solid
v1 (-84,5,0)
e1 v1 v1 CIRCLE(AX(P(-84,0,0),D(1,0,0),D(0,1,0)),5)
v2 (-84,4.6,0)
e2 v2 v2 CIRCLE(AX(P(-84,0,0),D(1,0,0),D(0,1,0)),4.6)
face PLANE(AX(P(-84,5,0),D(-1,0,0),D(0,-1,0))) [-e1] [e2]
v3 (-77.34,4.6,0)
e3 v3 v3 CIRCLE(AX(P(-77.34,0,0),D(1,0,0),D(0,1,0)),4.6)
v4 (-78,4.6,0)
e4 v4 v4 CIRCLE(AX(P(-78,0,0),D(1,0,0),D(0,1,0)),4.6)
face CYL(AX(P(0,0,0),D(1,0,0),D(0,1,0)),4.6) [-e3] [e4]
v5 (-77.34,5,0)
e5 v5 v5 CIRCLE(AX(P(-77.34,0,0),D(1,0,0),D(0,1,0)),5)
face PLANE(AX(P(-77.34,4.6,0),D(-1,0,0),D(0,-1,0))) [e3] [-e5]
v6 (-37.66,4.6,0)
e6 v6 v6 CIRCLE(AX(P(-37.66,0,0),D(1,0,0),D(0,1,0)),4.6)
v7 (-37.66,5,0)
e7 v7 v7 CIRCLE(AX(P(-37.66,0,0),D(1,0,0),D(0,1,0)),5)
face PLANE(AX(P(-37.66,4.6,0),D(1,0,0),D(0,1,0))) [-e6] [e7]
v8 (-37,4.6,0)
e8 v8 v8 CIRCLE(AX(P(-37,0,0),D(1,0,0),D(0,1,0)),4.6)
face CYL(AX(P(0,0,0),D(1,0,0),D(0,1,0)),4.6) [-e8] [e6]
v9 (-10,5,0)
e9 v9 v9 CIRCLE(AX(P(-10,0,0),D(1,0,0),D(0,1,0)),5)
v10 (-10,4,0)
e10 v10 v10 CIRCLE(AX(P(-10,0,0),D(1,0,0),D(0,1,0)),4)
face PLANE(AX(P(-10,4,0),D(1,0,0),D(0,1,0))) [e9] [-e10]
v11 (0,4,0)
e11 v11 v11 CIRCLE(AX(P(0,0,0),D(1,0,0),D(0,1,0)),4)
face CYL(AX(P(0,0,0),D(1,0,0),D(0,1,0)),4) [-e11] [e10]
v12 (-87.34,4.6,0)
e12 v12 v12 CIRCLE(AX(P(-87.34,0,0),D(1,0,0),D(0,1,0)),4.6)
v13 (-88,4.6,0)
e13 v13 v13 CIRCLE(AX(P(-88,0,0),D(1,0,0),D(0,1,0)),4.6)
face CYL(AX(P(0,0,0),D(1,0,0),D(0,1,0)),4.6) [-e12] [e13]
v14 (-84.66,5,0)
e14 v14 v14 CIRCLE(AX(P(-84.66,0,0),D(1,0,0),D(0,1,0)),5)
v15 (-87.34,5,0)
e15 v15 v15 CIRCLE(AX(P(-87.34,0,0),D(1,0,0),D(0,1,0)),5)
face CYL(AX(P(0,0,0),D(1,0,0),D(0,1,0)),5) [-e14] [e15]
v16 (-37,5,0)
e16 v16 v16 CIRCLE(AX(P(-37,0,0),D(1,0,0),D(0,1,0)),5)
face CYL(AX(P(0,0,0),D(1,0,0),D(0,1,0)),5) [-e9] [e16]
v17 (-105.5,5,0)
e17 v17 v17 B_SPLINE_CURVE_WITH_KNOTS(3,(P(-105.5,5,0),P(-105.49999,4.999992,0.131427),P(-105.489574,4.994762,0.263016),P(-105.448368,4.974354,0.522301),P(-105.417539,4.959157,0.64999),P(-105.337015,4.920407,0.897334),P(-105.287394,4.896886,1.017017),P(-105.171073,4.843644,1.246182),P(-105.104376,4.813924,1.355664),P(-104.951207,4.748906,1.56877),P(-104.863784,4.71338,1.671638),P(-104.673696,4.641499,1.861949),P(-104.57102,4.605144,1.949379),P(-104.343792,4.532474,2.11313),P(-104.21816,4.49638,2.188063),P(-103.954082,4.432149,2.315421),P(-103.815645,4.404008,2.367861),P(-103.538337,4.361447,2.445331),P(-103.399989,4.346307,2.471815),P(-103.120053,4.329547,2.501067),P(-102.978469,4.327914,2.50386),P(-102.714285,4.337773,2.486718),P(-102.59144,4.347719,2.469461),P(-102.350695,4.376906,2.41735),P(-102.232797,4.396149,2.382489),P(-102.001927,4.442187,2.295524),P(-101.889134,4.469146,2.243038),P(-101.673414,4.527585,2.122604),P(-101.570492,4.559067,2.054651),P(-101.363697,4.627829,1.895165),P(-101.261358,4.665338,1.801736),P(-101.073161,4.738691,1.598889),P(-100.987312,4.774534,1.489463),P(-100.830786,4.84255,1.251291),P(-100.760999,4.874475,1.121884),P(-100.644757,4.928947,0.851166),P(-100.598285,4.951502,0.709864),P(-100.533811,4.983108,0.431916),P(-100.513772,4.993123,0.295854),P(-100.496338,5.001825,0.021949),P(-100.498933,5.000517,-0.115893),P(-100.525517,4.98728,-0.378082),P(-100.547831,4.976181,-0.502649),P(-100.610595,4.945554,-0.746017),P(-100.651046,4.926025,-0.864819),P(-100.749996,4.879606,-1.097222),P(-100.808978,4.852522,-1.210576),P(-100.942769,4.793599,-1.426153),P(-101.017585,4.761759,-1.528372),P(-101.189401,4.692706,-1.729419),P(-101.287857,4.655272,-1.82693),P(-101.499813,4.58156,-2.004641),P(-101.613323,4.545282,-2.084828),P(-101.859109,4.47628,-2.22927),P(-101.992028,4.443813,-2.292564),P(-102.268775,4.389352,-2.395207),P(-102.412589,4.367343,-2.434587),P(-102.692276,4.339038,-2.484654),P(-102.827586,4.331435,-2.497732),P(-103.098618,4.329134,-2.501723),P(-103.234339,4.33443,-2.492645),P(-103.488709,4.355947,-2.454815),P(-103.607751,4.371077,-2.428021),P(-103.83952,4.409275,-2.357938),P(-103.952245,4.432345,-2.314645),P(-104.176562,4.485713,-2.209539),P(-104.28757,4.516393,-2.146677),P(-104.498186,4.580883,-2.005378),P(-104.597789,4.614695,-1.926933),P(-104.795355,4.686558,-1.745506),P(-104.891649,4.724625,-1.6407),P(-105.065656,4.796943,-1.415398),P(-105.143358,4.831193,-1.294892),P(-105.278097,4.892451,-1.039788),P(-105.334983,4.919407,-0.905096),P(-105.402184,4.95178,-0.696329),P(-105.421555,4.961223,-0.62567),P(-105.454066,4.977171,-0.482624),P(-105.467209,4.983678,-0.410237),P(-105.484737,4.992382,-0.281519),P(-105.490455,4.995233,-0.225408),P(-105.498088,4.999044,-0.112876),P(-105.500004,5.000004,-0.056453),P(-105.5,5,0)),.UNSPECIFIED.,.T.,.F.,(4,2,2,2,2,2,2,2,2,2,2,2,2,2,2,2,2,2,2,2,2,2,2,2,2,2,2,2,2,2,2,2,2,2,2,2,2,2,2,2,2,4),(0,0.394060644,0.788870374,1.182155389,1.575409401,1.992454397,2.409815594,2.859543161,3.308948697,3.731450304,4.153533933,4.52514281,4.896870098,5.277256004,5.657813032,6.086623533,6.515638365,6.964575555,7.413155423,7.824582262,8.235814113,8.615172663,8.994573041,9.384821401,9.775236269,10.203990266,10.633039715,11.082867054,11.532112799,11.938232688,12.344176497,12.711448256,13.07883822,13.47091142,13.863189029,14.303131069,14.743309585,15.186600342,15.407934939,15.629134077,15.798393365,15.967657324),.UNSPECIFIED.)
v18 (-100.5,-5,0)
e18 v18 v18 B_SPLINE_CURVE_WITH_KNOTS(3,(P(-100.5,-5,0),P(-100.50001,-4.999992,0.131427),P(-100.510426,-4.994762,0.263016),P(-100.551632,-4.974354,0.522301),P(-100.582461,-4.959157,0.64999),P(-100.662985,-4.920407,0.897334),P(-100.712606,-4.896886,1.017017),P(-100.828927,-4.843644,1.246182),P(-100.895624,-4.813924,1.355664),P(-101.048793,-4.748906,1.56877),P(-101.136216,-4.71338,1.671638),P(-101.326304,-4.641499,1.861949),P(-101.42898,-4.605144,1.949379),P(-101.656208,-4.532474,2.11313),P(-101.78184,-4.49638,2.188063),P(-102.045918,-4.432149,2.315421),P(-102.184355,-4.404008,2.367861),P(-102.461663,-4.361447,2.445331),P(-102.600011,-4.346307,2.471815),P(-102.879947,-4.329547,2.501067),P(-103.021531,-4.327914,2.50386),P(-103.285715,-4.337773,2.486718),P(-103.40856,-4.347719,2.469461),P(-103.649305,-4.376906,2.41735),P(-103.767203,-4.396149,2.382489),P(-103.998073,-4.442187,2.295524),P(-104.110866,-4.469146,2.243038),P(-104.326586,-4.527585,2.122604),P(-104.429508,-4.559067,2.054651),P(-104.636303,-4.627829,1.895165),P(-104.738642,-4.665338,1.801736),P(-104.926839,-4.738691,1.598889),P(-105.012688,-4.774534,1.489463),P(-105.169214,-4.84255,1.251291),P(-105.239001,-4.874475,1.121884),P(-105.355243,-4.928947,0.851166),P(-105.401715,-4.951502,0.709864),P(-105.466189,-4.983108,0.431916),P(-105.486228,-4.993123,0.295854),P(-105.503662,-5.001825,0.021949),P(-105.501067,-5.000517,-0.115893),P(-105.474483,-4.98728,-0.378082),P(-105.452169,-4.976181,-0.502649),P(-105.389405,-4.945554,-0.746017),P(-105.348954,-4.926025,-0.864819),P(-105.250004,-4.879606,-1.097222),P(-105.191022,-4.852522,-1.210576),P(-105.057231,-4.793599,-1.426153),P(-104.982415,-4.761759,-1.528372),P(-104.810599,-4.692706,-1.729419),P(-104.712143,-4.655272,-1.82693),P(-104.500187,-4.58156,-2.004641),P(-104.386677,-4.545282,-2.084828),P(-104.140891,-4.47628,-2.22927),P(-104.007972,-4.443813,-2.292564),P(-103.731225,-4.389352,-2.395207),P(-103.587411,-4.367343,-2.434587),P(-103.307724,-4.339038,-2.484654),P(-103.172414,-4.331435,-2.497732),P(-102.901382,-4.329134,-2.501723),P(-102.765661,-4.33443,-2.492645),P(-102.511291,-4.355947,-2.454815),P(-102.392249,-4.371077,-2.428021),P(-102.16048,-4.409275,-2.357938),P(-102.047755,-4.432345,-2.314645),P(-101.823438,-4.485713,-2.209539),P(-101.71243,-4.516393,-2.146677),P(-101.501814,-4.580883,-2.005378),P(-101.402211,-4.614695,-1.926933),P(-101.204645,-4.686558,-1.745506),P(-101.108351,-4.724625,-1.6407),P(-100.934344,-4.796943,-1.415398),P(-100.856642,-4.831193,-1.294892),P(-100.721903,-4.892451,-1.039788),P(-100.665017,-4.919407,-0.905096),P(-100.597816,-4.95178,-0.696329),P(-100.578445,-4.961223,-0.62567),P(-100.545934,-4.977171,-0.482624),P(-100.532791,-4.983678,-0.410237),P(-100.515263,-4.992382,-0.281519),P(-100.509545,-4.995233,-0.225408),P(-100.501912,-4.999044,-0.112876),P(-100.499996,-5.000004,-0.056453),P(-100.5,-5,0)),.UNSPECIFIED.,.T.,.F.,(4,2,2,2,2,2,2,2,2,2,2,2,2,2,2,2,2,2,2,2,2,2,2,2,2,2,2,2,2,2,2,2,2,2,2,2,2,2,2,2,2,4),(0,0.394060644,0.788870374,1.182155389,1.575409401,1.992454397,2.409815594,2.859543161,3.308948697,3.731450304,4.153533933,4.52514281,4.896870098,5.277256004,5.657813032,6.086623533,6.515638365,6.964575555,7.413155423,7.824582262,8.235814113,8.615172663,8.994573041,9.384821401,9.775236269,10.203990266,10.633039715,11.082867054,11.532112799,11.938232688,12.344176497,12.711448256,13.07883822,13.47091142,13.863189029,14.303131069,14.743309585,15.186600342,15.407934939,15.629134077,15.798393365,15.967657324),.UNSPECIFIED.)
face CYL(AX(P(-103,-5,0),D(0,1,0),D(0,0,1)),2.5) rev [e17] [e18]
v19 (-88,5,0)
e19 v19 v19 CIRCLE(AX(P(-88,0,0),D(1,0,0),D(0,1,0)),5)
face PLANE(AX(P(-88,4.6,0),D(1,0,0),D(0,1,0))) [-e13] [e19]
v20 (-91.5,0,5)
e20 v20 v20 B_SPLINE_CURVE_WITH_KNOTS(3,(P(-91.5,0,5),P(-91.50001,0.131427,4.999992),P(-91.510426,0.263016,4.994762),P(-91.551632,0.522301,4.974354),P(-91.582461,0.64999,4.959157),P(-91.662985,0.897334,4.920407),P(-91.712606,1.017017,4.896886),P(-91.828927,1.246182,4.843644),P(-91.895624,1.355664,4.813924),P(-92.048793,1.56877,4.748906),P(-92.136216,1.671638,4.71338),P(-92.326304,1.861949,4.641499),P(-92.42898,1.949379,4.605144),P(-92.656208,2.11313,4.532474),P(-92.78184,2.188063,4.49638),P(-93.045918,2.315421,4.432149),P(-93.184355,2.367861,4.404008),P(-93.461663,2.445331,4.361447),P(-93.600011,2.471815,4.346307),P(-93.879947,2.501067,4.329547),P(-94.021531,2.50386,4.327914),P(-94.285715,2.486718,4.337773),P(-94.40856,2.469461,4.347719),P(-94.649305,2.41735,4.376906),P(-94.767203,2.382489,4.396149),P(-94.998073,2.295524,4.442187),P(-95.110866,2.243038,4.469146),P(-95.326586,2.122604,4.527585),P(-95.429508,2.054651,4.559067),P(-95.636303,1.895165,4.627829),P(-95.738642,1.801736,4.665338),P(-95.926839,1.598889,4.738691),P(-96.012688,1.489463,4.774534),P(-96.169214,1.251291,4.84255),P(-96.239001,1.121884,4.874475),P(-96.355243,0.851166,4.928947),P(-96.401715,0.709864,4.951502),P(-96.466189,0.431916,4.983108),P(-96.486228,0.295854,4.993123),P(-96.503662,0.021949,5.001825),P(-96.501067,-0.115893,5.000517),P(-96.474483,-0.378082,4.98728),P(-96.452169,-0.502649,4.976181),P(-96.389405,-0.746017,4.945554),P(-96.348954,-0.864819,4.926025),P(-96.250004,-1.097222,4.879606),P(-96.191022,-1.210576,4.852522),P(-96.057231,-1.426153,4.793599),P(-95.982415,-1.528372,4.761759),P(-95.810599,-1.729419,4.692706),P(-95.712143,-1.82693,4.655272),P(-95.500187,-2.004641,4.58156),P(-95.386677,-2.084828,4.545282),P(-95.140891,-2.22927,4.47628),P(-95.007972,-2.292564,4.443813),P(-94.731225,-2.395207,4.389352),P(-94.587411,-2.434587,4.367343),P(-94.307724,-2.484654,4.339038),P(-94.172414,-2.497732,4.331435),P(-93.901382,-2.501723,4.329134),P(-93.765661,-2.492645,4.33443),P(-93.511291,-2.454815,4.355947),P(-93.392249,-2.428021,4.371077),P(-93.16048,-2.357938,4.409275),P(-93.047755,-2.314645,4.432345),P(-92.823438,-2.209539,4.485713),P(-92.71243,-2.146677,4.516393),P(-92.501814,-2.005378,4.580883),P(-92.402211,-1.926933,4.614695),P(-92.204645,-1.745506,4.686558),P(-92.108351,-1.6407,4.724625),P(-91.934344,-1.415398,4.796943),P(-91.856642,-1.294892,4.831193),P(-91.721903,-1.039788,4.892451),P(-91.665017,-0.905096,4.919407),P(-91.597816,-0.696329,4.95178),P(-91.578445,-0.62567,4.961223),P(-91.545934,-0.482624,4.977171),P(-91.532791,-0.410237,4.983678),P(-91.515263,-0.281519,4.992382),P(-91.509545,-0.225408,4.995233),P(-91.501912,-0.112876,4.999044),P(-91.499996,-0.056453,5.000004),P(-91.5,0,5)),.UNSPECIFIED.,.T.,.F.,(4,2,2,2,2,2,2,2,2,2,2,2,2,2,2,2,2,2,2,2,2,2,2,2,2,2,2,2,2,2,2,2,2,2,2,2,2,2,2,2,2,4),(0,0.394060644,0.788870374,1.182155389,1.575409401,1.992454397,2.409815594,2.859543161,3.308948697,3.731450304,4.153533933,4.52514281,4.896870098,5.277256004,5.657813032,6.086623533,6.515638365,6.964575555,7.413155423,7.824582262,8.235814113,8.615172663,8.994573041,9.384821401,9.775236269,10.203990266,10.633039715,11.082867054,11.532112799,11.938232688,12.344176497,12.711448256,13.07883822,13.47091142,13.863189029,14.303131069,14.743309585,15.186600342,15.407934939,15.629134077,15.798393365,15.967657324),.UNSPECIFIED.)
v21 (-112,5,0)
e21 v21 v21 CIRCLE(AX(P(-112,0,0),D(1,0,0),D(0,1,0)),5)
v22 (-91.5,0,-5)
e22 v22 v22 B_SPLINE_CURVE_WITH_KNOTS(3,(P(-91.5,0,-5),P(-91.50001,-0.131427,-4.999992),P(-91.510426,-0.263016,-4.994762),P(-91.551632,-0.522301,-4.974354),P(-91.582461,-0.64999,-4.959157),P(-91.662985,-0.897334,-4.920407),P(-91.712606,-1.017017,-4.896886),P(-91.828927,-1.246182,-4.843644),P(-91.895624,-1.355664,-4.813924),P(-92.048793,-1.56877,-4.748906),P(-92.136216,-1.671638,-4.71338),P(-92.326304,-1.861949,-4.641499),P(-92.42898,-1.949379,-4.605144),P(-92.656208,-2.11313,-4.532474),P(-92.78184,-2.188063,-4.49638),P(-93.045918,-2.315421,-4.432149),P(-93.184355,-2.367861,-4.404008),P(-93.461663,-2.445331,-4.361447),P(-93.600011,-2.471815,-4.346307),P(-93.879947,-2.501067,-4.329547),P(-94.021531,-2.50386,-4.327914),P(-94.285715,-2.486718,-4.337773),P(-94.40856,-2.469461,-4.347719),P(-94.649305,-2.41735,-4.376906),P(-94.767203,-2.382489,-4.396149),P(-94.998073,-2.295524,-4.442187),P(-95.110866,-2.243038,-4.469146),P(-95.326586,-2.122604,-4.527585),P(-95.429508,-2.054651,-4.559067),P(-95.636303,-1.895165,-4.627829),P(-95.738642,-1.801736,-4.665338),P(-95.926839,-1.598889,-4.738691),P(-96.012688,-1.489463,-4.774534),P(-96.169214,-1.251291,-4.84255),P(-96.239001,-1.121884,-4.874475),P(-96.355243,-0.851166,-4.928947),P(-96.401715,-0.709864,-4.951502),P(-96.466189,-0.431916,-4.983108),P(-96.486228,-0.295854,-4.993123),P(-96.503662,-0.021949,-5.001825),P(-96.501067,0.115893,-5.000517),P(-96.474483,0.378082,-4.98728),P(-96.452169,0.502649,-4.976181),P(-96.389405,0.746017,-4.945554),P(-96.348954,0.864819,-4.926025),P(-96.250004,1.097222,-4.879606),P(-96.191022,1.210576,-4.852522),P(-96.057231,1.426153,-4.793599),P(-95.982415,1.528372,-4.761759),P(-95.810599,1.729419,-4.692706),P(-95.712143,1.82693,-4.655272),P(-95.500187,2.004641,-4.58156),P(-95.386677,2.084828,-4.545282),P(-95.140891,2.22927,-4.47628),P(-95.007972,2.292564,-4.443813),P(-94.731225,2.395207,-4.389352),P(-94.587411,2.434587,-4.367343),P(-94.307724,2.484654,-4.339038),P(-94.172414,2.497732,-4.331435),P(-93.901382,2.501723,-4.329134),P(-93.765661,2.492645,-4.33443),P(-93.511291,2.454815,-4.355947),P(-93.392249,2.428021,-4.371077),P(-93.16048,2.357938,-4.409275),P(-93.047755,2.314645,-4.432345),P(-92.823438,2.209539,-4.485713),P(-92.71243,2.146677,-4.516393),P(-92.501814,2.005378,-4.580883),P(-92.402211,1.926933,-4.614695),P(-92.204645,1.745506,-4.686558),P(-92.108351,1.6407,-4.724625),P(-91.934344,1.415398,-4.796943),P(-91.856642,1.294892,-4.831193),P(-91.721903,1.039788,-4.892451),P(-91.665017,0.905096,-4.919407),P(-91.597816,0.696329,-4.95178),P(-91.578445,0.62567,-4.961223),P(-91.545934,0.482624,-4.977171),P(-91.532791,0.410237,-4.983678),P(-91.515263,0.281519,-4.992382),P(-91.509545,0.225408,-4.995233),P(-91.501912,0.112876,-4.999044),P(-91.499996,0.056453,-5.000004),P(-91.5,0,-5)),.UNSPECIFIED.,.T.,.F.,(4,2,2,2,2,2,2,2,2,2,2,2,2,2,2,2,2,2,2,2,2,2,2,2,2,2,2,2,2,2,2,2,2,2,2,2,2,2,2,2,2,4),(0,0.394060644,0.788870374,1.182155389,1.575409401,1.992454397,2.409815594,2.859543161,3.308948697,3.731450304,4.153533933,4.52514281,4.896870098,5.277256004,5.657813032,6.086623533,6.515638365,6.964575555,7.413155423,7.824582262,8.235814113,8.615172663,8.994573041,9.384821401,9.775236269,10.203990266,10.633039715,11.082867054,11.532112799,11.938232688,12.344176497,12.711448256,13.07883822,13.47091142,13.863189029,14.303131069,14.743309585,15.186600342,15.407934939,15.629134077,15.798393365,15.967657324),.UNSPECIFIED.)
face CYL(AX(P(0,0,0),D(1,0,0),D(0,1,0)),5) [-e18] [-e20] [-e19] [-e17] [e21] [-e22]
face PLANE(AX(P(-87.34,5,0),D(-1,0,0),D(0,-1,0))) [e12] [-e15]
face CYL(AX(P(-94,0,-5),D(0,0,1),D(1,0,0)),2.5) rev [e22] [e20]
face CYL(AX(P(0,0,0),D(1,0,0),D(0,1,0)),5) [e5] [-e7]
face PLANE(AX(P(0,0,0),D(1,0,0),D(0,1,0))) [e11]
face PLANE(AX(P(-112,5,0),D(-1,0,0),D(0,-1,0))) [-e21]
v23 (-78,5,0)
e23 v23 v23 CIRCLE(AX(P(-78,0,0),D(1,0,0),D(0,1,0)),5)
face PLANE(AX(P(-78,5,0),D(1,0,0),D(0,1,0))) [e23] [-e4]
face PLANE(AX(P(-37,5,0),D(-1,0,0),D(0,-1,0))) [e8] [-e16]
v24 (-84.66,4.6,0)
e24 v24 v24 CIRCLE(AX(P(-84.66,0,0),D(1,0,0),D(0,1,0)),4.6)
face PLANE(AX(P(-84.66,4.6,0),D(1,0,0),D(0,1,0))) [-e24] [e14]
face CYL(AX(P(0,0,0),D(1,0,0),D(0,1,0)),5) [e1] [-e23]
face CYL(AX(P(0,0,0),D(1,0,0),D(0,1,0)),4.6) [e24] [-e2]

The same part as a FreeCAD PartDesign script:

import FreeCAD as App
import Part
import Sketcher
from FreeCAD import Vector
Q = App.Units.Quantity

doc = App.newDocument("Part")
params = doc.addObject("Spreadsheet::Sheet", "Params")
for row, (alias, value) in enumerate([
    ("sketch1_width", "10 mm"),
    ("sketch1_width2", "27 mm"),
    ("sketch1_width3", "6 mm"),
    ("sketch1_width4", "24 mm"),
    ("sketch1_width5", "112 mm"),
    ("revolution_angle", "360 deg"),
    ("sketch2_diameter", "5 mm"),
    ("sketch3_diameter", "5 mm"),
], start=1):
    params.set(f"A{row}", alias)
    params.set(f"B{row}", "=" + value)
    params.setAlias(f"B{row}", alias)

body = doc.addObject("PartDesign::Body", "Body")

# Sketch on XY plane
sketch1 = doc.addObject("Sketcher::SketchObject", "Sketch")
body.addObject(sketch1)
sketch1.AttachmentSupport = (doc.XY_Plane, [""])
sketch1.MapMode = "FlatFace"
sketch1.addGeometry([
    Part.LineSegment(Vector(0, 0, 0), Vector(0, 4, 0)),  # 0
    Part.LineSegment(Vector(0, 4, 0), Vector(-10, 4, 0)),  # 1
    Part.LineSegment(Vector(-10, 4, 0), Vector(-10, 5, 0)),  # 2
    Part.LineSegment(Vector(-10, 5, 0), Vector(-37, 5, 0)),  # 3
    Part.LineSegment(Vector(-37, 5, 0), Vector(-37, 4.6, 0)),  # 4
    Part.LineSegment(Vector(-37, 4.6, 0), Vector(-37.66, 4.6, 0)),  # 5
    Part.LineSegment(Vector(-37.66, 4.6, 0), Vector(-37.66, 5, 0)),  # 6
    Part.LineSegment(Vector(-37.66, 5, 0), Vector(-77.34, 5, 0)),  # 7
    Part.LineSegment(Vector(-77.34, 5, 0), Vector(-77.34, 4.6, 0)),  # 8
    Part.LineSegment(Vector(-77.34, 4.6, 0), Vector(-78, 4.6, 0)),  # 9
    Part.LineSegment(Vector(-78, 4.6, 0), Vector(-78, 5, 0)),  # 10
    Part.LineSegment(Vector(-78, 5, 0), Vector(-84, 5, 0)),  # 11
    Part.LineSegment(Vector(-84, 5, 0), Vector(-84, 4.6, 0)),  # 12
    Part.LineSegment(Vector(-84, 4.6, 0), Vector(-84.66, 4.6, 0)),  # 13
    Part.LineSegment(Vector(-84.66, 4.6, 0), Vector(-84.66, 5, 0)),  # 14
    Part.LineSegment(Vector(-84.66, 5, 0), Vector(-87.34, 5, 0)),  # 15
    Part.LineSegment(Vector(-87.34, 5, 0), Vector(-87.34, 4.6, 0)),  # 16
    Part.LineSegment(Vector(-87.34, 4.6, 0), Vector(-88, 4.6, 0)),  # 17
    Part.LineSegment(Vector(-88, 4.6, 0), Vector(-88, 5, 0)),  # 18
    Part.LineSegment(Vector(-88, 5, 0), Vector(-112, 5, 0)),  # 19
    Part.LineSegment(Vector(-112, 5, 0), Vector(-112, 0, 0)),  # 20
    Part.LineSegment(Vector(-112, 0, 0), Vector(0, 0, 0)),  # 21
], False)
sketch1.addConstraint([
    Sketcher.Constraint("Coincident", 0, 2, 1, 1),
    Sketcher.Constraint("Coincident", 1, 2, 2, 1),
    Sketcher.Constraint("Coincident", 2, 2, 3, 1),
    Sketcher.Constraint("Coincident", 3, 2, 4, 1),
    Sketcher.Constraint("Coincident", 4, 2, 5, 1),
    Sketcher.Constraint("Coincident", 5, 2, 6, 1),
    Sketcher.Constraint("Coincident", 6, 2, 7, 1),
    Sketcher.Constraint("Coincident", 7, 2, 8, 1),
    Sketcher.Constraint("Coincident", 8, 2, 9, 1),
    Sketcher.Constraint("Coincident", 9, 2, 10, 1),
    Sketcher.Constraint("Coincident", 10, 2, 11, 1),
    Sketcher.Constraint("Coincident", 11, 2, 12, 1),
    Sketcher.Constraint("Coincident", 12, 2, 13, 1),
    Sketcher.Constraint("Coincident", 13, 2, 14, 1),
    Sketcher.Constraint("Coincident", 14, 2, 15, 1),
    Sketcher.Constraint("Coincident", 15, 2, 16, 1),
    Sketcher.Constraint("Coincident", 16, 2, 17, 1),
    Sketcher.Constraint("Coincident", 17, 2, 18, 1),
    Sketcher.Constraint("Coincident", 18, 2, 19, 1),
    Sketcher.Constraint("Coincident", 19, 2, 20, 1),
    Sketcher.Constraint("Coincident", 20, 2, 21, 1),
    Sketcher.Constraint("Coincident", 21, 2, 0, 1),
    Sketcher.Constraint("Vertical", 0),
    Sketcher.Constraint("Horizontal", 1),
    Sketcher.Constraint("Vertical", 2),
    Sketcher.Constraint("Horizontal", 3),
    Sketcher.Constraint("Vertical", 4),
    Sketcher.Constraint("Horizontal", 5),
    Sketcher.Constraint("Vertical", 6),
    Sketcher.Constraint("Horizontal", 7),
    Sketcher.Constraint("Vertical", 8),
    Sketcher.Constraint("Horizontal", 9),
    Sketcher.Constraint("Vertical", 10),
    Sketcher.Constraint("Horizontal", 11),
    Sketcher.Constraint("Vertical", 12),
    Sketcher.Constraint("Horizontal", 13),
    Sketcher.Constraint("Vertical", 14),
    Sketcher.Constraint("Horizontal", 15),
    Sketcher.Constraint("Vertical", 16),
    Sketcher.Constraint("Horizontal", 17),
    Sketcher.Constraint("Vertical", 18),
    Sketcher.Constraint("Horizontal", 19),
    Sketcher.Constraint("Vertical", 20),
    Sketcher.Constraint("Horizontal", 21),
    Sketcher.Constraint("Coincident", 21, 2, -1, 1),
    Sketcher.Constraint("Horizontal", 3, 2, 6, 2),
    Sketcher.Constraint("Horizontal", 5, 2, 8, 2),
    Sketcher.Constraint("Horizontal", 7, 2, 10, 2),
    Sketcher.Constraint("Horizontal", 9, 2, 12, 2),
    Sketcher.Constraint("Horizontal", 11, 2, 14, 2),
    Sketcher.Constraint("Horizontal", 13, 2, 16, 2),
    Sketcher.Constraint("Horizontal", 15, 2, 18, 2),
    Sketcher.Constraint("Equal", 5, 9),
    Sketcher.Constraint("Equal", 9, 13),
    Sketcher.Constraint("Equal", 13, 17),
    Sketcher.Constraint("DistanceX", 1, 2, 1, 1, Q("10 mm")),
    Sketcher.Constraint("DistanceX", 3, 2, 3, 1, Q("27 mm")),
    Sketcher.Constraint("DistanceX", 11, 2, 11, 1, Q("6 mm")),
    Sketcher.Constraint("DistanceX", 19, 2, 19, 1, Q("24 mm")),
    Sketcher.Constraint("DistanceX", 21, 1, 21, 2, Q("112 mm")),
    Sketcher.Constraint("DistanceY", 0, 1, 0, 2, Q("4 mm")),
    Sketcher.Constraint("DistanceY", 2, 1, 2, 2, Q("1 mm")),
    Sketcher.Constraint("DistanceY", 4, 2, 4, 1, Q("0.4 mm")),
    Sketcher.Constraint("DistanceX", 9, 2, -1, 1, Q("78 mm")),
    Sketcher.Constraint("DistanceX", 5, 2, 5, 1, Q("0.66 mm")),
])
sketch1.setExpression("Constraints[55]", "Params.sketch1_width")
sketch1.setExpression("Constraints[56]", "Params.sketch1_width2")
sketch1.setExpression("Constraints[57]", "Params.sketch1_width3")
sketch1.setExpression("Constraints[58]", "Params.sketch1_width4")
sketch1.setExpression("Constraints[59]", "Params.sketch1_width5")
revolution = doc.addObject("PartDesign::Revolution", "Revolution")
body.addObject(revolution)
revolution.Profile = sketch1
revolution.ReferenceAxis = (sketch1, ["H_Axis"])
revolution.setExpression("Angle", "Params.revolution_angle")

# Sketch on XZ plane
sketch2 = doc.addObject("Sketcher::SketchObject", "Sketch001")
body.addObject(sketch2)
sketch2.AttachmentSupport = (doc.XZ_Plane, [""])
sketch2.MapMode = "FlatFace"
sketch2.addGeometry(Part.Circle(Vector(-103, 0, 0), Vector(0, 0, 1), 2.5), False)
sketch2.addConstraint([
    Sketcher.Constraint("PointOnObject", 0, 3, -1),
    Sketcher.Constraint("Diameter", 0, Q("5 mm")),
    Sketcher.Constraint("DistanceX", 0, 3, -1, 1, Q("103 mm")),
])
sketch2.setExpression("Constraints[1]", "Params.sketch2_diameter")
pocket1 = doc.addObject("PartDesign::Pocket", "Pocket")
body.addObject(pocket1)
pocket1.Profile = sketch2
pocket1.Type = "ThroughAll"
pocket1.Midplane = True

# Sketch on XY plane
sketch3 = doc.addObject("Sketcher::SketchObject", "Sketch002")
body.addObject(sketch3)
sketch3.AttachmentSupport = (doc.XY_Plane, [""])
sketch3.MapMode = "FlatFace"
sketch3.addGeometry(Part.Circle(Vector(-94, 0, 0), Vector(0, 0, 1), 2.5), False)
sketch3.addConstraint([
    Sketcher.Constraint("PointOnObject", 0, 3, -1),
    Sketcher.Constraint("Diameter", 0, Q("5 mm")),
    Sketcher.Constraint("DistanceX", 0, 3, -1, 1, Q("94 mm")),
])
sketch3.setExpression("Constraints[1]", "Params.sketch3_diameter")
pocket2 = doc.addObject("PartDesign::Pocket", "Pocket001")
body.addObject(pocket2)
pocket2.Profile = sketch3
pocket2.Type = "ThroughAll"
pocket2.Midplane = True

doc.recompute()
